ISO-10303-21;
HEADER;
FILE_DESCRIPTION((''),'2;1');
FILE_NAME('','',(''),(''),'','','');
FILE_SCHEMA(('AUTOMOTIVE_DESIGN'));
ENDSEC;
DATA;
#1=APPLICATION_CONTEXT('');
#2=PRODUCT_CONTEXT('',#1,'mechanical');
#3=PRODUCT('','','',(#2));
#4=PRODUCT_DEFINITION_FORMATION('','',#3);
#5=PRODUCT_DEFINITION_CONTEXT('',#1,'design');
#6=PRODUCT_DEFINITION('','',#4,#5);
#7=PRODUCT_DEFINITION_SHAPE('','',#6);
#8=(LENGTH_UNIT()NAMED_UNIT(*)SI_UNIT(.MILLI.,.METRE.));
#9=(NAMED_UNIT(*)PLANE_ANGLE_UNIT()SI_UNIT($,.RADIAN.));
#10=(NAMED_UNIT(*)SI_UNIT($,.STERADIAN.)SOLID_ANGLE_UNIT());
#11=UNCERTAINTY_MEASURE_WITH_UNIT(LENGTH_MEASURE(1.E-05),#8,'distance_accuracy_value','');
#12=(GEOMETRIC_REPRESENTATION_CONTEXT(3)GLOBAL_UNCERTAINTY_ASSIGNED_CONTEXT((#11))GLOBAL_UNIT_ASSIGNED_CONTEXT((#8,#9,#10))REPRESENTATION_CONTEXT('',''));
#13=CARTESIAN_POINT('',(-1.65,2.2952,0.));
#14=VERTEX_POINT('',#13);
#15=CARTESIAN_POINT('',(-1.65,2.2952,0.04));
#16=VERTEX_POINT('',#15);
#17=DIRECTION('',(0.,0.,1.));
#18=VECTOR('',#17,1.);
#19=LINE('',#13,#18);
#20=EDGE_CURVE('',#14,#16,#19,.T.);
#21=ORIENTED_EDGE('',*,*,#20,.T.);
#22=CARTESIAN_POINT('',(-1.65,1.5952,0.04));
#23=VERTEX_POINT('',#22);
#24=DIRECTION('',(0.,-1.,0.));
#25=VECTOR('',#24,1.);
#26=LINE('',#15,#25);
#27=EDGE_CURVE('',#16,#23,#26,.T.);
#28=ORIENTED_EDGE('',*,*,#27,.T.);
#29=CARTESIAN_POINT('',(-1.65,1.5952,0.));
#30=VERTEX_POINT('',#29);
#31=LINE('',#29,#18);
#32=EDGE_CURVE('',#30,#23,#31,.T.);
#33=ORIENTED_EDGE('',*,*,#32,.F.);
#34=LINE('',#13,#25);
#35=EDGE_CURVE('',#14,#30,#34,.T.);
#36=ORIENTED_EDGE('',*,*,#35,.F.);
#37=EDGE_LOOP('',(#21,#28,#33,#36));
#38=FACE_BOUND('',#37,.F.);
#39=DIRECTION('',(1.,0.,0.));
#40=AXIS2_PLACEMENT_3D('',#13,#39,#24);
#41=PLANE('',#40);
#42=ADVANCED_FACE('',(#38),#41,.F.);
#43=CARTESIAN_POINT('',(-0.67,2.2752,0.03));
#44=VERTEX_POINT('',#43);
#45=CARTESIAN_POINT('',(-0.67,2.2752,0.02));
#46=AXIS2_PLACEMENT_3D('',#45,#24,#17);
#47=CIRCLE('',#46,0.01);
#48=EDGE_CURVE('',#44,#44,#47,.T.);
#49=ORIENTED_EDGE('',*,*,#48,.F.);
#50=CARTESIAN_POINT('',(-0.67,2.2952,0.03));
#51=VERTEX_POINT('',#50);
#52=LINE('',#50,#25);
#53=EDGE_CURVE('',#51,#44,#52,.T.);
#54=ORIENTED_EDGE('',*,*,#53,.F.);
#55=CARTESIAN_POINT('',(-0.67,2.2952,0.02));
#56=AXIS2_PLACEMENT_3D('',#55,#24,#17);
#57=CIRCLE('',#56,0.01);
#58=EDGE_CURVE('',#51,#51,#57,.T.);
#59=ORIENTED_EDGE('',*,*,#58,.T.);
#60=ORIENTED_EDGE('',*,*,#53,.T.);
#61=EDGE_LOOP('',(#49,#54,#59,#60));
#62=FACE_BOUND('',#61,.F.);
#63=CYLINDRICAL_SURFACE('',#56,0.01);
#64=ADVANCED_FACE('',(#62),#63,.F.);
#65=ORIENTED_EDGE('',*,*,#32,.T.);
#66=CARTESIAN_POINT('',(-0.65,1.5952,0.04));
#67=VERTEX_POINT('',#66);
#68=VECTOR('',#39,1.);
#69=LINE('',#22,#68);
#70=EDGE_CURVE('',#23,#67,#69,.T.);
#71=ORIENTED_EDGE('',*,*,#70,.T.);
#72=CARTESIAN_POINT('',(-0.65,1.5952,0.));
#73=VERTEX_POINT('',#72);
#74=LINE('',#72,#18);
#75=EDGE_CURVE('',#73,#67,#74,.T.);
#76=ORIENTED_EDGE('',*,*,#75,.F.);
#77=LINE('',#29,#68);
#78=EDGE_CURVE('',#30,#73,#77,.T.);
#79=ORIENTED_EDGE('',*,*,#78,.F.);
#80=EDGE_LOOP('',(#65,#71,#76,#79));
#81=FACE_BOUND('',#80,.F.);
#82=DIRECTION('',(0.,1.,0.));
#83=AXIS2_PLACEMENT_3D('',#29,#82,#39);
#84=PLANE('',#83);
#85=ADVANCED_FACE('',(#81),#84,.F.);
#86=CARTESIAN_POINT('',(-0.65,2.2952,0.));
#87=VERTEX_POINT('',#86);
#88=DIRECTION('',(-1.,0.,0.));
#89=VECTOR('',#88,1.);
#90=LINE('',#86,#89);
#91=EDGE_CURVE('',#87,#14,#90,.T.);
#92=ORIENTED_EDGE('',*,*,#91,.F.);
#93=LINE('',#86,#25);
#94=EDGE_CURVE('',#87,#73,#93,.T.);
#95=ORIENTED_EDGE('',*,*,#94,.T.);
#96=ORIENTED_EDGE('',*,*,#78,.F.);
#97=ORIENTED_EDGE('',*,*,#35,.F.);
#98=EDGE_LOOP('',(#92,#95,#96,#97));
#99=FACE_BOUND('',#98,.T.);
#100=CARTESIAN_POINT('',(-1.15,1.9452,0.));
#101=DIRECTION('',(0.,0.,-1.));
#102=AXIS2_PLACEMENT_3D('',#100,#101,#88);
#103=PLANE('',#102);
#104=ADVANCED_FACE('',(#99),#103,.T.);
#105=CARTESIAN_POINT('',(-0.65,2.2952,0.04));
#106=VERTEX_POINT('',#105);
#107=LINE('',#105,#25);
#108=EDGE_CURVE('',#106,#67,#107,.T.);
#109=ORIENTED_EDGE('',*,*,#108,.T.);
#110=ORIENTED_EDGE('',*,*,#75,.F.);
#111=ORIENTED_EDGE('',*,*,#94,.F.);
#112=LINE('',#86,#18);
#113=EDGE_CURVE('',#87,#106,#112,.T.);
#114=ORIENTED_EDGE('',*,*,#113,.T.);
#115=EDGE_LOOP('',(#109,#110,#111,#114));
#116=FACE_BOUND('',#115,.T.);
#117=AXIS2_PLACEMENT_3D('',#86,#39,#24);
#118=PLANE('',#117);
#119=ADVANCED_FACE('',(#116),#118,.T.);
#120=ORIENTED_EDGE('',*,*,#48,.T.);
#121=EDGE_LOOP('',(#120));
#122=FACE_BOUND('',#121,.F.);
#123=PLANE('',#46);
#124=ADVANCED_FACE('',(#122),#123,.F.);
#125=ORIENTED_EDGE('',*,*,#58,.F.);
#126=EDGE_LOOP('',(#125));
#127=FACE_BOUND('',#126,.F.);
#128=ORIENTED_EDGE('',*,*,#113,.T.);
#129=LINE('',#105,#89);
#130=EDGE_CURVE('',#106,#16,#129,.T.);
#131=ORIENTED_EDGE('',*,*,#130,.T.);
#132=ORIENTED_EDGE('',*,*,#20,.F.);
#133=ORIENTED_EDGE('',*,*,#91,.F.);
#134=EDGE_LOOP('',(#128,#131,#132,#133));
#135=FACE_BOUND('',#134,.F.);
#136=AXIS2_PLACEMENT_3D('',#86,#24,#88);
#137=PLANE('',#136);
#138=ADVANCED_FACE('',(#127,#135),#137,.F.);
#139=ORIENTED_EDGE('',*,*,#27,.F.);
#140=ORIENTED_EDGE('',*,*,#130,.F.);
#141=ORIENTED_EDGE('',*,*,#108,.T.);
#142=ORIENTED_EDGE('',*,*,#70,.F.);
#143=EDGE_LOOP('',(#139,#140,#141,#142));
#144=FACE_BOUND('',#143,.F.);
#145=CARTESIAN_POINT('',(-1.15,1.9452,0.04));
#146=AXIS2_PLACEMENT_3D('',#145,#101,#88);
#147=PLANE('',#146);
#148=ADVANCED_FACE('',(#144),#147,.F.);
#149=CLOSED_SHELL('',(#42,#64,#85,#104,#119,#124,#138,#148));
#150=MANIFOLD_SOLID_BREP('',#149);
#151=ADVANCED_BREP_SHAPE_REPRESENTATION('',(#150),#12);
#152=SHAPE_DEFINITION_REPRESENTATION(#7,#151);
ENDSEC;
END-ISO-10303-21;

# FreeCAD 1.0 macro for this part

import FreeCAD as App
import Part
import Sketcher
from FreeCAD import Vector

doc = App.newDocument("Part")
body = doc.addObject("PartDesign::Body", "Body")

# Sketch on XY plane
sketch1 = body.newObject("Sketcher::SketchObject", "Sketch")
sketch1.AttachmentSupport = (doc.getObject("XY_Plane"), [""])
sketch1.MapMode = "FlatFace"
sketch1.addGeometry([
    Part.LineSegment(Vector(-0.65, 1.5952, 0), Vector(-0.65, 2.2952, 0)),
    Part.LineSegment(Vector(-0.65, 2.2952, 0), Vector(-1.65, 2.2952, 0)),
    Part.LineSegment(Vector(-1.65, 2.2952, 0), Vector(-1.65, 1.5952, 0)),
    Part.LineSegment(Vector(-1.65, 1.5952, 0), Vector(-0.65, 1.5952, 0)),
], False)
sketch1.addConstraint([
    Sketcher.Constraint("Coincident", 0, 2, 1, 1),
    Sketcher.Constraint("Coincident", 1, 2, 2, 1),
    Sketcher.Constraint("Coincident", 2, 2, 3, 1),
    Sketcher.Constraint("Coincident", 3, 2, 0, 1),
    Sketcher.Constraint("Vertical", 0),
    Sketcher.Constraint("Horizontal", 1),
    Sketcher.Constraint("Vertical", 2),
    Sketcher.Constraint("Horizontal", 3),
    Sketcher.Constraint("DistanceX", 1, 2, 1, 1, 1.0),
    Sketcher.Constraint("DistanceY", 0, 1, 0, 2, 0.7),
    Sketcher.Constraint("DistanceX", 0, 2, -1, 1, 0.65),
    Sketcher.Constraint("DistanceY", -1, 1, 0, 2, 2.2952),
])
pad1 = body.newObject("PartDesign::Pad", "Pad")
pad1.Profile = sketch1
pad1.Length = 0.04

# Sketch on XZ plane
sketch2 = body.newObject("Sketcher::SketchObject", "Sketch001")
sketch2.AttachmentSupport = (doc.getObject("XZ_Plane"), [""])
sketch2.MapMode = "FlatFace"
sketch2.AttachmentOffset = App.Placement(Vector(0, 0, -2.2952), App.Rotation())
sketch2.addGeometry(Part.Circle(Vector(-0.67, 0.02, 0), Vector(0, 0, 1), 0.01), False)
sketch2.addConstraint([
    Sketcher.Constraint("Diameter", 0, 0.02),
    Sketcher.Constraint("DistanceX", 0, 3, -1, 1, 0.67),
    Sketcher.Constraint("DistanceY", -1, 1, 0, 3, 0.02),
])
doc.recompute()
hole = body.newObject("PartDesign::Hole", "Hole")
hole.Profile = sketch2
hole.ThreadType = "None"
hole.Diameter = 0.02
hole.DepthType = "Dimension"
hole.Depth = 0.02
hole.DrillPoint = "Flat"
hole.Reversed = True

doc.recompute()
